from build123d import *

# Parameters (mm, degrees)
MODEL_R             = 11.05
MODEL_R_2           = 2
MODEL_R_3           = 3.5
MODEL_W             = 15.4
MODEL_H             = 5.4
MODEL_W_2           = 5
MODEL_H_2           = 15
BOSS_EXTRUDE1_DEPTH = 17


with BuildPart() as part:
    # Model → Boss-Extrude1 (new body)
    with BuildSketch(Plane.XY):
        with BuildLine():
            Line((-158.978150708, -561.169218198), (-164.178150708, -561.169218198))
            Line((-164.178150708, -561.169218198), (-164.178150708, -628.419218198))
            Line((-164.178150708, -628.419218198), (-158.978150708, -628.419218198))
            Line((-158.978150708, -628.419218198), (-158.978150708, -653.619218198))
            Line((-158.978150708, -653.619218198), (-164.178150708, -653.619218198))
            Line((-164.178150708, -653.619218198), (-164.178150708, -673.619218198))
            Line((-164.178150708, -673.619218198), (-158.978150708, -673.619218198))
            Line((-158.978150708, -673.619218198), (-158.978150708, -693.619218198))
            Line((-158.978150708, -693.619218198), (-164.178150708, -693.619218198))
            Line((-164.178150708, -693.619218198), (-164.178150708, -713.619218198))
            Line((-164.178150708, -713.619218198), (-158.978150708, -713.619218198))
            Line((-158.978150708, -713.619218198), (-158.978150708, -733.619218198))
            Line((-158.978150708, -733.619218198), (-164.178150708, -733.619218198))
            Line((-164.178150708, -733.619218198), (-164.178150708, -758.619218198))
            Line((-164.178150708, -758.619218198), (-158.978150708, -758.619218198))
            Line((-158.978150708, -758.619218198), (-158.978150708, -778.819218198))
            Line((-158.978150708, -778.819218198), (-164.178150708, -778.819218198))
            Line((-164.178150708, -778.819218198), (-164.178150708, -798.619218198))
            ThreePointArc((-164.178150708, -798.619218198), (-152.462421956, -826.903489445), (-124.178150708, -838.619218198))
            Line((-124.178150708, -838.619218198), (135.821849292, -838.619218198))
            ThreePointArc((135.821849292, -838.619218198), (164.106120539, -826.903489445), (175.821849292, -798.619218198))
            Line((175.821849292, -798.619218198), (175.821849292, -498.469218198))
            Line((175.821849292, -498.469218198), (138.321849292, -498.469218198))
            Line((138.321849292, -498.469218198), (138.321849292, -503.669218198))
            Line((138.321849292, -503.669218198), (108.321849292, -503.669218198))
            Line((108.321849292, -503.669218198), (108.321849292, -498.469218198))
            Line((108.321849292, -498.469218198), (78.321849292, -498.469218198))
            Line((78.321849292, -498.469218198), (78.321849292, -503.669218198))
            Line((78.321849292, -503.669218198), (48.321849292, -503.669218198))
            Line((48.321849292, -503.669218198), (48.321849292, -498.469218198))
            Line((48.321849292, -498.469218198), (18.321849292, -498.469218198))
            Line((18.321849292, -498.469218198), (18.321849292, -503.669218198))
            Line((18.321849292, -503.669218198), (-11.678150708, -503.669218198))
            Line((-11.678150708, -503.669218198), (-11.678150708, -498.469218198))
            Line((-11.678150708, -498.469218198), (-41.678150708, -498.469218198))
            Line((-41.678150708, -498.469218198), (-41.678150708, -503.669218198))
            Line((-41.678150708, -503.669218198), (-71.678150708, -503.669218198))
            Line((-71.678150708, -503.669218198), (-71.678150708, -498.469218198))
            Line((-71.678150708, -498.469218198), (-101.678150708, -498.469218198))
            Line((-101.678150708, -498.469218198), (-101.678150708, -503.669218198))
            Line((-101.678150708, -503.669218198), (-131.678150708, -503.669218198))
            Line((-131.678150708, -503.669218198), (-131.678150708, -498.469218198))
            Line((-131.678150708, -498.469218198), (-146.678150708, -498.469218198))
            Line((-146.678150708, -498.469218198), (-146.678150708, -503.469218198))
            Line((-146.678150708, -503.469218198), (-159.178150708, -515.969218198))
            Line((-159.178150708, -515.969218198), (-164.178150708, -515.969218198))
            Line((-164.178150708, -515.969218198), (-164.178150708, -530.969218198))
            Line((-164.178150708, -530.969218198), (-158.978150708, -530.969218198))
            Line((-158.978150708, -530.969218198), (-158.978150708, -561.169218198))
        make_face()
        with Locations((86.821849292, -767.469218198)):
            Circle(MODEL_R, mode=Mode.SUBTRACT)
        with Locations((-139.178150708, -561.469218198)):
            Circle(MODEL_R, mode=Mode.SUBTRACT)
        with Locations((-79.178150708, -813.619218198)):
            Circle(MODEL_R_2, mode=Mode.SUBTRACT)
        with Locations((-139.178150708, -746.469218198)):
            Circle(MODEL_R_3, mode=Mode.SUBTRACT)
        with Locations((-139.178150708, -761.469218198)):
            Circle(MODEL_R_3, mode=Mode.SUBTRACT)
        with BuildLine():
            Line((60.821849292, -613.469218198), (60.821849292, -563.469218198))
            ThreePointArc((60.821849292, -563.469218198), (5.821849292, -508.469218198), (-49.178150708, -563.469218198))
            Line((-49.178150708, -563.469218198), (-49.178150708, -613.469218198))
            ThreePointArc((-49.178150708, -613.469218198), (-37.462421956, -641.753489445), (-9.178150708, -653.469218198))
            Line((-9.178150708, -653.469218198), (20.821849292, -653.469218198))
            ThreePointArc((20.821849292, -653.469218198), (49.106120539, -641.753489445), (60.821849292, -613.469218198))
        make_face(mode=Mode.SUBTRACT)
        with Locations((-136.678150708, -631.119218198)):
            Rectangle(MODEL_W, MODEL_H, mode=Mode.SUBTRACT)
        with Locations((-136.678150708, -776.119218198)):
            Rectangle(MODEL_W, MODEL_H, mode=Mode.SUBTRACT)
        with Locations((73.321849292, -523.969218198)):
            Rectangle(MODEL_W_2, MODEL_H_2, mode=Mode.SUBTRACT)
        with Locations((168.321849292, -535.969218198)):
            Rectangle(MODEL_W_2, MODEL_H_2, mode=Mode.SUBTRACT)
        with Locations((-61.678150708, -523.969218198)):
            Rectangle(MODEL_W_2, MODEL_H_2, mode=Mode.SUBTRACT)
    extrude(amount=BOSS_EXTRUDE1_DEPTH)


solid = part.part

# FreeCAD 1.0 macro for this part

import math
import FreeCAD as App
import Part
import Sketcher
Q = App.Units.Quantity

doc = App.newDocument("Part")
body = doc.addObject("PartDesign::Body", "Body")

# Sketch on XY plane
sketch1 = doc.addObject("Sketcher::SketchObject", "Sketch")
body.addObject(sketch1)
sketch1.AttachmentSupport = (doc.XY_Plane, [""])
sketch1.MapMode = "FlatFace"
sketch1.addGeometry([
    Part.LineSegment(App.Vector(-158.978151, -561.169218, 0), App.Vector(-164.178151, -561.169218, 0)),  # 0
    Part.LineSegment(App.Vector(-164.178151, -561.169218, 0), App.Vector(-164.178151, -628.419218, 0)),  # 1
    Part.LineSegment(App.Vector(-164.178151, -628.419218, 0), App.Vector(-158.978151, -628.419218, 0)),  # 2
    Part.LineSegment(App.Vector(-158.978151, -628.419218, 0), App.Vector(-158.978151, -653.619218, 0)),  # 3
    Part.LineSegment(App.Vector(-158.978151, -653.619218, 0), App.Vector(-164.178151, -653.619218, 0)),  # 4
    Part.LineSegment(App.Vector(-164.178151, -653.619218, 0), App.Vector(-164.178151, -673.619218, 0)),  # 5
    Part.LineSegment(App.Vector(-164.178151, -673.619218, 0), App.Vector(-158.978151, -673.619218, 0)),  # 6
    Part.LineSegment(App.Vector(-158.978151, -673.619218, 0), App.Vector(-158.978151, -693.619218, 0)),  # 7
    Part.LineSegment(App.Vector(-158.978151, -693.619218, 0), App.Vector(-164.178151, -693.619218, 0)),  # 8
    Part.LineSegment(App.Vector(-164.178151, -693.619218, 0), App.Vector(-164.178151, -713.619218, 0)),  # 9
    Part.LineSegment(App.Vector(-164.178151, -713.619218, 0), App.Vector(-158.978151, -713.619218, 0)),  # 10
    Part.LineSegment(App.Vector(-158.978151, -713.619218, 0), App.Vector(-158.978151, -733.619218, 0)),  # 11
    Part.LineSegment(App.Vector(-158.978151, -733.619218, 0), App.Vector(-164.178151, -733.619218, 0)),  # 12
    Part.LineSegment(App.Vector(-164.178151, -733.619218, 0), App.Vector(-164.178151, -758.619218, 0)),  # 13
    Part.LineSegment(App.Vector(-164.178151, -758.619218, 0), App.Vector(-158.978151, -758.619218, 0)),  # 14
    Part.LineSegment(App.Vector(-158.978151, -758.619218, 0), App.Vector(-158.978151, -778.819218, 0)),  # 15
    Part.LineSegment(App.Vector(-158.978151, -778.819218, 0), App.Vector(-164.178151, -778.819218, 0)),  # 16
    Part.LineSegment(App.Vector(-164.178151, -778.819218, 0), App.Vector(-164.178151, -798.619218, 0)),  # 17
    Part.ArcOfCircle(Part.Circle(App.Vector(-124.178151, -798.619218, 0), App.Vector(0, 0, 1), 40), math.radians(180), math.radians(270)),  # 18
    Part.LineSegment(App.Vector(-124.178151, -838.619218, 0), App.Vector(135.821849, -838.619218, 0)),  # 19
    Part.ArcOfCircle(Part.Circle(App.Vector(135.821849, -798.619218, 0), App.Vector(0, 0, 1), 40), math.radians(-90), math.radians(0)),  # 20
    Part.LineSegment(App.Vector(175.821849, -798.619218, 0), App.Vector(175.821849, -498.469218, 0)),  # 21
    Part.LineSegment(App.Vector(175.821849, -498.469218, 0), App.Vector(138.321849, -498.469218, 0)),  # 22
    Part.LineSegment(App.Vector(138.321849, -498.469218, 0), App.Vector(138.321849, -503.669218, 0)),  # 23
    Part.LineSegment(App.Vector(138.321849, -503.669218, 0), App.Vector(108.321849, -503.669218, 0)),  # 24
    Part.LineSegment(App.Vector(108.321849, -503.669218, 0), App.Vector(108.321849, -498.469218, 0)),  # 25
    Part.LineSegment(App.Vector(108.321849, -498.469218, 0), App.Vector(78.321849, -498.469218, 0)),  # 26
    Part.LineSegment(App.Vector(78.321849, -498.469218, 0), App.Vector(78.321849, -503.669218, 0)),  # 27
    Part.LineSegment(App.Vector(78.321849, -503.669218, 0), App.Vector(48.321849, -503.669218, 0)),  # 28
    Part.LineSegment(App.Vector(48.321849, -503.669218, 0), App.Vector(48.321849, -498.469218, 0)),  # 29
    Part.LineSegment(App.Vector(48.321849, -498.469218, 0), App.Vector(18.321849, -498.469218, 0)),  # 30
    Part.LineSegment(App.Vector(18.321849, -498.469218, 0), App.Vector(18.321849, -503.669218, 0)),  # 31
    Part.LineSegment(App.Vector(18.321849, -503.669218, 0), App.Vector(-11.678151, -503.669218, 0)),  # 32
    Part.LineSegment(App.Vector(-11.678151, -503.669218, 0), App.Vector(-11.678151, -498.469218, 0)),  # 33
    Part.LineSegment(App.Vector(-11.678151, -498.469218, 0), App.Vector(-41.678151, -498.469218, 0)),  # 34
    Part.LineSegment(App.Vector(-41.678151, -498.469218, 0), App.Vector(-41.678151, -503.669218, 0)),  # 35
    Part.LineSegment(App.Vector(-41.678151, -503.669218, 0), App.Vector(-71.678151, -503.669218, 0)),  # 36
    Part.LineSegment(App.Vector(-71.678151, -503.669218, 0), App.Vector(-71.678151, -498.469218, 0)),  # 37
    Part.LineSegment(App.Vector(-71.678151, -498.469218, 0), App.Vector(-101.678151, -498.469218, 0)),  # 38
    Part.LineSegment(App.Vector(-101.678151, -498.469218, 0), App.Vector(-101.678151, -503.669218, 0)),  # 39
    Part.LineSegment(App.Vector(-101.678151, -503.669218, 0), App.Vector(-131.678151, -503.669218, 0)),  # 40
    Part.LineSegment(App.Vector(-131.678151, -503.669218, 0), App.Vector(-131.678151, -498.469218, 0)),  # 41
    Part.LineSegment(App.Vector(-131.678151, -498.469218, 0), App.Vector(-146.678151, -498.469218, 0)),  # 42
    Part.LineSegment(App.Vector(-146.678151, -498.469218, 0), App.Vector(-146.678151, -503.469218, 0)),  # 43
    Part.LineSegment(App.Vector(-146.678151, -503.469218, 0), App.Vector(-159.178151, -515.969218, 0)),  # 44
    Part.LineSegment(App.Vector(-159.178151, -515.969218, 0), App.Vector(-164.178151, -515.969218, 0)),  # 45
    Part.LineSegment(App.Vector(-164.178151, -515.969218, 0), App.Vector(-164.178151, -530.969218, 0)),  # 46
    Part.LineSegment(App.Vector(-164.178151, -530.969218, 0), App.Vector(-158.978151, -530.969218, 0)),  # 47
    Part.LineSegment(App.Vector(-158.978151, -530.969218, 0), App.Vector(-158.978151, -561.169218, 0)),  # 48
    Part.Circle(App.Vector(-79.178151, -813.619218, 0), App.Vector(0, 0, 1), 2),  # 49
    Part.LineSegment(App.Vector(-128.978151, -778.819218, 0), App.Vector(-144.378151, -778.819218, 0)),  # 50
    Part.LineSegment(App.Vector(-144.378151, -778.819218, 0), App.Vector(-144.378151, -773.419218, 0)),  # 51
    Part.LineSegment(App.Vector(-144.378151, -773.419218, 0), App.Vector(-128.978151, -773.419218, 0)),  # 52
    Part.LineSegment(App.Vector(-128.978151, -773.419218, 0), App.Vector(-128.978151, -778.819218, 0)),  # 53
    Part.Circle(App.Vector(-139.178151, -761.469218, 0), App.Vector(0, 0, 1), 3.5),  # 54
    Part.Circle(App.Vector(-139.178151, -746.469218, 0), App.Vector(0, 0, 1), 3.5),  # 55
    Part.Circle(App.Vector(86.821849, -767.469218, 0), App.Vector(0, 0, 1), 11.05),  # 56
    Part.LineSegment(App.Vector(-128.978151, -633.819218, 0), App.Vector(-144.378151, -633.819218, 0)),  # 57
    Part.LineSegment(App.Vector(-144.378151, -633.819218, 0), App.Vector(-144.378151, -628.419218, 0)),  # 58
    Part.LineSegment(App.Vector(-144.378151, -628.419218, 0), App.Vector(-128.978151, -628.419218, 0)),  # 59
    Part.LineSegment(App.Vector(-128.978151, -628.419218, 0), App.Vector(-128.978151, -633.819218, 0)),  # 60
    Part.Circle(App.Vector(-139.178151, -561.469218, 0), App.Vector(0, 0, 1), 11.05),  # 61
    Part.LineSegment(App.Vector(60.821849, -563.469218, 0), App.Vector(60.821849, -613.469218, 0)),  # 62
    Part.ArcOfCircle(Part.Circle(App.Vector(20.821849, -613.469218, 0), App.Vector(0, 0, 1), 40), math.radians(-90), math.radians(0)),  # 63
    Part.LineSegment(App.Vector(20.821849, -653.469218, 0), App.Vector(-9.178151, -653.469218, 0)),  # 64
    Part.ArcOfCircle(Part.Circle(App.Vector(-9.178151, -613.469218, 0), App.Vector(0, 0, 1), 40), math.radians(180), math.radians(270)),  # 65
    Part.LineSegment(App.Vector(-49.178151, -613.469218, 0), App.Vector(-49.178151, -563.469218, 0)),  # 66
    Part.ArcOfCircle(Part.Circle(App.Vector(5.821849, -563.469218, 0), App.Vector(0, 0, 1), 55), math.radians(0), math.radians(180)),  # 67
    Part.LineSegment(App.Vector(-59.178151, -531.469218, 0), App.Vector(-64.178151, -531.469218, 0)),  # 68
    Part.LineSegment(App.Vector(-64.178151, -531.469218, 0), App.Vector(-64.178151, -516.469218, 0)),  # 69
    Part.LineSegment(App.Vector(-64.178151, -516.469218, 0), App.Vector(-59.178151, -516.469218, 0)),  # 70
    Part.LineSegment(App.Vector(-59.178151, -516.469218, 0), App.Vector(-59.178151, -531.469218, 0)),  # 71
    Part.LineSegment(App.Vector(75.821849, -531.469218, 0), App.Vector(70.821849, -531.469218, 0)),  # 72
    Part.LineSegment(App.Vector(70.821849, -531.469218, 0), App.Vector(70.821849, -516.469218, 0)),  # 73
    Part.LineSegment(App.Vector(70.821849, -516.469218, 0), App.Vector(75.821849, -516.469218, 0)),  # 74
    Part.LineSegment(App.Vector(75.821849, -516.469218, 0), App.Vector(75.821849, -531.469218, 0)),  # 75
    Part.LineSegment(App.Vector(170.821849, -543.469218, 0), App.Vector(165.821849, -543.469218, 0)),  # 76
    Part.LineSegment(App.Vector(165.821849, -543.469218, 0), App.Vector(165.821849, -528.469218, 0)),  # 77
    Part.LineSegment(App.Vector(165.821849, -528.469218, 0), App.Vector(170.821849, -528.469218, 0)),  # 78
    Part.LineSegment(App.Vector(170.821849, -528.469218, 0), App.Vector(170.821849, -543.469218, 0)),  # 79
], False)
sketch1.addConstraint([
    Sketcher.Constraint("Coincident", 0, 2, 1, 1),
    Sketcher.Constraint("Coincident", 1, 2, 2, 1),
    Sketcher.Constraint("Coincident", 2, 2, 3, 1),
    Sketcher.Constraint("Coincident", 3, 2, 4, 1),
    Sketcher.Constraint("Coincident", 4, 2, 5, 1),
    Sketcher.Constraint("Coincident", 5, 2, 6, 1),
    Sketcher.Constraint("Coincident", 6, 2, 7, 1),
    Sketcher.Constraint("Coincident", 7, 2, 8, 1),
    Sketcher.Constraint("Coincident", 8, 2, 9, 1),
    Sketcher.Constraint("Coincident", 9, 2, 10, 1),
    Sketcher.Constraint("Coincident", 10, 2, 11, 1),
    Sketcher.Constraint("Coincident", 11, 2, 12, 1),
    Sketcher.Constraint("Coincident", 12, 2, 13, 1),
    Sketcher.Constraint("Coincident", 13, 2, 14, 1),
    Sketcher.Constraint("Coincident", 14, 2, 15, 1),
    Sketcher.Constraint("Coincident", 15, 2, 16, 1),
    Sketcher.Constraint("Coincident", 16, 2, 17, 1),
    Sketcher.Constraint("Tangent", 17, 2, 18, 1),
    Sketcher.Constraint("Tangent", 18, 2, 19, 1),
    Sketcher.Constraint("Tangent", 19, 2, 20, 1),
    Sketcher.Constraint("Tangent", 20, 2, 21, 1),
    Sketcher.Constraint("Coincident", 21, 2, 22, 1),
    Sketcher.Constraint("Coincident", 22, 2, 23, 1),
    Sketcher.Constraint("Coincident", 23, 2, 24, 1),
    Sketcher.Constraint("Coincident", 24, 2, 25, 1),
    Sketcher.Constraint("Coincident", 25, 2, 26, 1),
    Sketcher.Constraint("Coincident", 26, 2, 27, 1),
    Sketcher.Constraint("Coincident", 27, 2, 28, 1),
    Sketcher.Constraint("Coincident", 28, 2, 29, 1),
    Sketcher.Constraint("Coincident", 29, 2, 30, 1),
    Sketcher.Constraint("Coincident", 30, 2, 31, 1),
    Sketcher.Constraint("Coincident", 31, 2, 32, 1),
    Sketcher.Constraint("Coincident", 32, 2, 33, 1),
    Sketcher.Constraint("Coincident", 33, 2, 34, 1),
    Sketcher.Constraint("Coincident", 34, 2, 35, 1),
    Sketcher.Constraint("Coincident", 35, 2, 36, 1),
    Sketcher.Constraint("Coincident", 36, 2, 37, 1),
    Sketcher.Constraint("Coincident", 37, 2, 38, 1),
    Sketcher.Constraint("Coincident", 38, 2, 39, 1),
    Sketcher.Constraint("Coincident", 39, 2, 40, 1),
    Sketcher.Constraint("Coincident", 40, 2, 41, 1),
    Sketcher.Constraint("Coincident", 41, 2, 42, 1),
    Sketcher.Constraint("Coincident", 42, 2, 43, 1),
    Sketcher.Constraint("Coincident", 43, 2, 44, 1),
    Sketcher.Constraint("Coincident", 44, 2, 45, 1),
    Sketcher.Constraint("Coincident", 45, 2, 46, 1),
    Sketcher.Constraint("Coincident", 46, 2, 47, 1),
    Sketcher.Constraint("Coincident", 47, 2, 48, 1),
    Sketcher.Constraint("Coincident", 48, 2, 0, 1),
    Sketcher.Constraint("Coincident", 50, 2, 51, 1),
    Sketcher.Constraint("Coincident", 51, 2, 52, 1),
    Sketcher.Constraint("Coincident", 52, 2, 53, 1),
    Sketcher.Constraint("Coincident", 53, 2, 50, 1),
    Sketcher.Constraint("Coincident", 57, 2, 58, 1),
    Sketcher.Constraint("Coincident", 58, 2, 59, 1),
    Sketcher.Constraint("Coincident", 59, 2, 60, 1),
    Sketcher.Constraint("Coincident", 60, 2, 57, 1),
    Sketcher.Constraint("Tangent", 62, 2, 63, 2),
    Sketcher.Constraint("Tangent", 63, 1, 64, 1),
    Sketcher.Constraint("Tangent", 64, 2, 65, 2),
    Sketcher.Constraint("Tangent", 65, 1, 66, 1),
    Sketcher.Constraint("Tangent", 66, 2, 67, 2),
    Sketcher.Constraint("Tangent", 67, 1, 62, 1),
    Sketcher.Constraint("Coincident", 68, 2, 69, 1),
    Sketcher.Constraint("Coincident", 69, 2, 70, 1),
    Sketcher.Constraint("Coincident", 70, 2, 71, 1),
    Sketcher.Constraint("Coincident", 71, 2, 68, 1),
    Sketcher.Constraint("Coincident", 72, 2, 73, 1),
    Sketcher.Constraint("Coincident", 73, 2, 74, 1),
    Sketcher.Constraint("Coincident", 74, 2, 75, 1),
    Sketcher.Constraint("Coincident", 75, 2, 72, 1),
    Sketcher.Constraint("Coincident", 76, 2, 77, 1),
    Sketcher.Constraint("Coincident", 77, 2, 78, 1),
    Sketcher.Constraint("Coincident", 78, 2, 79, 1),
    Sketcher.Constraint("Coincident", 79, 2, 76, 1),
    Sketcher.Constraint("Horizontal", 0),
    Sketcher.Constraint("Vertical", 1),
    Sketcher.Constraint("Horizontal", 2),
    Sketcher.Constraint("Vertical", 3),
    Sketcher.Constraint("Horizontal", 4),
    Sketcher.Constraint("Vertical", 5),
    Sketcher.Constraint("Horizontal", 6),
    Sketcher.Constraint("Vertical", 7),
    Sketcher.Constraint("Horizontal", 8),
    Sketcher.Constraint("Vertical", 9),
    Sketcher.Constraint("Horizontal", 10),
    Sketcher.Constraint("Vertical", 11),
    Sketcher.Constraint("Horizontal", 12),
    Sketcher.Constraint("Vertical", 13),
    Sketcher.Constraint("Horizontal", 14),
    Sketcher.Constraint("Vertical", 15),
    Sketcher.Constraint("Horizontal", 16),
    Sketcher.Constraint("Vertical", 17),
    Sketcher.Constraint("Horizontal", 19),
    Sketcher.Constraint("Vertical", 21),
    Sketcher.Constraint("Horizontal", 22),
    Sketcher.Constraint("Vertical", 23),
    Sketcher.Constraint("Horizontal", 24),
    Sketcher.Constraint("Vertical", 25),
    Sketcher.Constraint("Horizontal", 26),
    Sketcher.Constraint("Vertical", 27),
    Sketcher.Constraint("Horizontal", 28),
    Sketcher.Constraint("Vertical", 29),
    Sketcher.Constraint("Horizontal", 30),
    Sketcher.Constraint("Vertical", 31),
    Sketcher.Constraint("Horizontal", 32),
    Sketcher.Constraint("Vertical", 33),
    Sketcher.Constraint("Horizontal", 34),
    Sketcher.Constraint("Vertical", 35),
    Sketcher.Constraint("Horizontal", 36),
    Sketcher.Constraint("Vertical", 37),
    Sketcher.Constraint("Horizontal", 38),
    Sketcher.Constraint("Vertical", 39),
    Sketcher.Constraint("Horizontal", 40),
    Sketcher.Constraint("Vertical", 41),
    Sketcher.Constraint("Horizontal", 42),
    Sketcher.Constraint("Vertical", 43),
    Sketcher.Constraint("Horizontal", 45),
    Sketcher.Constraint("Vertical", 46),
    Sketcher.Constraint("Horizontal", 47),
    Sketcher.Constraint("Vertical", 48),
    Sketcher.Constraint("Horizontal", 50),
    Sketcher.Constraint("Vertical", 51),
    Sketcher.Constraint("Horizontal", 52),
    Sketcher.Constraint("Vertical", 53),
    Sketcher.Constraint("Horizontal", 57),
    Sketcher.Constraint("Vertical", 58),
    Sketcher.Constraint("Horizontal", 59),
    Sketcher.Constraint("Vertical", 60),
    Sketcher.Constraint("Vertical", 62),
    Sketcher.Constraint("Horizontal", 64),
    Sketcher.Constraint("Vertical", 66),
    Sketcher.Constraint("Horizontal", 68),
    Sketcher.Constraint("Vertical", 69),
    Sketcher.Constraint("Horizontal", 70),
    Sketcher.Constraint("Vertical", 71),
    Sketcher.Constraint("Horizontal", 72),
    Sketcher.Constraint("Vertical", 73),
    Sketcher.Constraint("Horizontal", 74),
    Sketcher.Constraint("Vertical", 75),
    Sketcher.Constraint("Horizontal", 76),
    Sketcher.Constraint("Vertical", 77),
    Sketcher.Constraint("Horizontal", 78),
    Sketcher.Constraint("Vertical", 79),
    Sketcher.Constraint("Equal", 18, 20),
    Sketcher.Constraint("Equal", 54, 55),
    Sketcher.Constraint("Equal", 56, 61),
    Sketcher.Constraint("Equal", 20, 63),
    Sketcher.Constraint("Equal", 63, 65),
    Sketcher.Constraint("Horizontal", 22, 2, 25, 2),
    Sketcher.Constraint("Horizontal", 24, 2, 27, 2),
    Sketcher.Constraint("Horizontal", 26, 2, 29, 2),
    Sketcher.Constraint("Horizontal", 28, 2, 31, 2),
    Sketcher.Constraint("Horizontal", 30, 2, 33, 2),
    Sketcher.Constraint("Horizontal", 32, 2, 35, 2),
    Sketcher.Constraint("Horizontal", 34, 2, 37, 2),
    Sketcher.Constraint("Horizontal", 36, 2, 39, 2),
    Sketcher.Constraint("Horizontal", 38, 2, 41, 2),
    Sketcher.Constraint("Horizontal", 16, 2, 50, 2),
    Sketcher.Constraint("Horizontal", 2, 2, 58, 2),
    Sketcher.Constraint("Horizontal", 71, 2, 72, 2),
    Sketcher.Constraint("Horizontal", 70, 2, 73, 2),
    Sketcher.Constraint("Vertical", 54, 3, 55, 3),
    Sketcher.Constraint("Vertical", 55, 3, 61, 3),
    Sketcher.Constraint("Vertical", 1, 2, 4, 2),
    Sketcher.Constraint("Vertical", 3, 2, 6, 2),
    Sketcher.Constraint("Vertical", 5, 2, 8, 2),
    Sketcher.Constraint("Vertical", 7, 2, 10, 2),
    Sketcher.Constraint("Vertical", 9, 2, 12, 2),
    Sketcher.Constraint("Vertical", 11, 2, 14, 2),
    Sketcher.Constraint("Vertical", 13, 2, 16, 2),
    Sketcher.Constraint("Vertical", 17, 2, 45, 2),
    Sketcher.Constraint("Vertical", 15, 2, 47, 2),
    Sketcher.Constraint("Vertical", 51, 2, 57, 2),
    Sketcher.Constraint("Vertical", 53, 2, 59, 2),
    Sketcher.Constraint("Equal", 24, 26),
    Sketcher.Constraint("Equal", 26, 28),
    Sketcher.Constraint("Equal", 28, 30),
    Sketcher.Constraint("Equal", 30, 32),
    Sketcher.Constraint("Equal", 32, 34),
    Sketcher.Constraint("Equal", 34, 36),
    Sketcher.Constraint("Equal", 36, 38),
    Sketcher.Constraint("Equal", 38, 40),
    Sketcher.Constraint("Equal", 40, 64),
    Sketcher.Constraint("Equal", 45, 68),
    Sketcher.Constraint("Equal", 70, 72),
    Sketcher.Constraint("Equal", 74, 76),
    Sketcher.Constraint("Equal", 5, 7),
    Sketcher.Constraint("Equal", 7, 9),
    Sketcher.Constraint("Equal", 9, 11),
    Sketcher.Constraint("Equal", 47, 23),
    Sketcher.Constraint("Equal", 78, 43),
    Sketcher.Constraint("Equal", 42, 46),
    Sketcher.Constraint("Equal", 53, 58),
    Sketcher.Constraint("Equal", 46, 69),
    Sketcher.Constraint("Equal", 75, 77),
    Sketcher.Constraint("Diameter", 49, 4.0),
    Sketcher.Constraint("Diameter", 54, 7.0),
    Sketcher.Constraint("Radius", 18, 40.0),
    Sketcher.Constraint("Radius", 67, 55.0),
    Sketcher.Constraint("Diameter", 56, 22.1),
    Sketcher.Constraint("DistanceX", 19, 1, 19, 2, 260.0),
    Sketcher.Constraint("DistanceX", 42, 2, 42, 1, 15.0),
    Sketcher.Constraint("DistanceX", 45, 2, 45, 1, 5.0),
    Sketcher.Constraint("DistanceY", 5, 2, 5, 1, 20.0),
    Sketcher.Constraint("DistanceY", 13, 2, 13, 1, 25.0),
    Sketcher.Constraint("DistanceY", 62, 2, 62, 1, 50.0),
    Sketcher.Constraint("Angle", 44, Q("-135 deg")),
    Sketcher.Constraint("DistanceX", 0, 2, 0, 1, 5.2),
    Sketcher.Constraint("DistanceX", 22, 2, 22, 1, 37.5),
    Sketcher.Constraint("DistanceX", 50, 2, 50, 1, 15.4),
    Sketcher.Constraint("DistanceY", 3, 2, 3, 1, 25.2),
    Sketcher.Constraint("DistanceY", 15, 2, 15, 1, 20.2),
    Sketcher.Constraint("DistanceY", 17, 2, 17, 1, 19.8),
    Sketcher.Constraint("DistanceY", 48, 2, 48, 1, 30.2),
    Sketcher.Constraint("DistanceY", 51, 1, 51, 2, 5.4),
    Sketcher.Constraint("DistanceY", 1, 2, 1, 1, 67.25),
    Sketcher.Constraint("DistanceX", 18, 3, -1, 1, 124.178151),
    Sketcher.Constraint("DistanceY", 18, 3, -1, 1, 798.619218),
    Sketcher.Constraint("DistanceX", 49, 3, -1, 1, 79.178151),
    Sketcher.Constraint("DistanceY", 49, 3, -1, 1, 813.619218),
    Sketcher.Constraint("DistanceX", 54, 3, -1, 1, 139.178151),
    Sketcher.Constraint("DistanceY", 54, 3, -1, 1, 761.469218),
    Sketcher.Constraint("DistanceY", 55, 3, -1, 1, 746.469218),
    Sketcher.Constraint("DistanceX", -1, 1, 56, 3, 86.821849),
    Sketcher.Constraint("DistanceY", 56, 3, -1, 1, 767.469218),
    Sketcher.Constraint("DistanceY", 61, 3, -1, 1, 561.469218),
    Sketcher.Constraint("DistanceX", -1, 1, 63, 3, 20.821849),
    Sketcher.Constraint("DistanceY", 63, 3, -1, 1, 613.469218),
    Sketcher.Constraint("DistanceX", 50, 2, -1, 1, 144.378151),
    Sketcher.Constraint("DistanceX", 68, 2, -1, 1, 64.178151),
    Sketcher.Constraint("DistanceY", 68, 2, -1, 1, 531.469218),
    Sketcher.Constraint("DistanceX", -1, 1, 72, 2, 70.821849),
    Sketcher.Constraint("DistanceX", -1, 1, 76, 2, 165.821849),
    Sketcher.Constraint("DistanceY", 76, 2, -1, 1, 543.469218),
])
pad1 = doc.addObject("PartDesign::Pad", "Pad")
body.addObject(pad1)
pad1.Profile = sketch1
pad1.Length = 17

doc.recompute()
